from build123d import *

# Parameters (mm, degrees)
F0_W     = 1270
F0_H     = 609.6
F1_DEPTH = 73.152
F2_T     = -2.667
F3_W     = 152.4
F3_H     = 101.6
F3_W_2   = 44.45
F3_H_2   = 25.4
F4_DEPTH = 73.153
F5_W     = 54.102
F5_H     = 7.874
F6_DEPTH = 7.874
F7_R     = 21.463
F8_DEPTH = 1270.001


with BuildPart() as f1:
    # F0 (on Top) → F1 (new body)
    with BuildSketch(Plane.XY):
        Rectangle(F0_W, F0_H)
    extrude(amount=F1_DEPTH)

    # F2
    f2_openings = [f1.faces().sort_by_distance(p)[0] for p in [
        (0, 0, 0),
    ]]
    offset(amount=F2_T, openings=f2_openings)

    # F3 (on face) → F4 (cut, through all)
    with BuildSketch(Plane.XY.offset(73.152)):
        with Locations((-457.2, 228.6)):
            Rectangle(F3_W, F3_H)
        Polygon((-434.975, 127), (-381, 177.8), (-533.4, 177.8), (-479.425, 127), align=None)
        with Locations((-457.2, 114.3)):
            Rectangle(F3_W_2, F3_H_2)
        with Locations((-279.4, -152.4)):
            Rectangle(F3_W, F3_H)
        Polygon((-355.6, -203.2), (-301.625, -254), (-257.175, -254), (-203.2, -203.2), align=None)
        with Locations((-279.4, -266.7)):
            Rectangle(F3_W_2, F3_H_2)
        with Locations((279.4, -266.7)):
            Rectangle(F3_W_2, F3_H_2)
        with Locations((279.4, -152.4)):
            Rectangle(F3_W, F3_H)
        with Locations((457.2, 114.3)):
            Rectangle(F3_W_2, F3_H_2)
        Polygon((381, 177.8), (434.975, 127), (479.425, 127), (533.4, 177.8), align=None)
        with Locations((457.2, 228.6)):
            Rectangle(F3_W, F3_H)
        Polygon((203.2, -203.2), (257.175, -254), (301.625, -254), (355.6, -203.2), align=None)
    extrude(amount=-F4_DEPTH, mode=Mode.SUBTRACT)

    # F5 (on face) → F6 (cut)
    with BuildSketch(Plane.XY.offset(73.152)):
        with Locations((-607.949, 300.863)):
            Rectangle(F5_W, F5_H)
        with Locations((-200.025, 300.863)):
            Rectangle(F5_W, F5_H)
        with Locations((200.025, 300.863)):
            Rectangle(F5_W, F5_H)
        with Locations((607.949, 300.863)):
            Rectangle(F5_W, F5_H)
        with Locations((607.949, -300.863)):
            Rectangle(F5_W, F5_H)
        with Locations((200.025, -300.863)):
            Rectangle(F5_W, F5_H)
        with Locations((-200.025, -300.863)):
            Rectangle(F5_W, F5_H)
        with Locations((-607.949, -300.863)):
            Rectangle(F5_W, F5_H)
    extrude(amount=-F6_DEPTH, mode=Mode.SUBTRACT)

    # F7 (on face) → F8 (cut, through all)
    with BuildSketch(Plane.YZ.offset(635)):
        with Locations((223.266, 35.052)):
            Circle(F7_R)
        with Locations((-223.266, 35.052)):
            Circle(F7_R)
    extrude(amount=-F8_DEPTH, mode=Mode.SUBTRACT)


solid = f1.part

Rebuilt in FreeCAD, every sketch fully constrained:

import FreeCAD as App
import Part
import Sketcher
Q = App.Units.Quantity


def faces_at(feature, points):
    """Names of the faces that lie closest to the given points."""
    faces = feature.Shape.Faces
    near = lambda p: min(range(len(faces)), key=lambda i: faces[i].distToShape(Part.Vertex(*p))[0])
    return sorted({f"Face{near(p) + 1}" for p in points})


def add_polygon(sketch, points):
    """Adds a closed chain of lines whose ends are joined by coincident constraints."""
    first, n = sketch.GeometryCount, len(points)
    for a, b in zip(points, points[1:] + points[:1]):
        sketch.addGeometry(Part.LineSegment(App.Vector(*a, 0), App.Vector(*b, 0)), False)
    for i in range(n):
        sketch.addConstraint(Sketcher.Constraint("Coincident", first + i, 2, first + (i + 1) % n, 1))

doc = App.newDocument("Part")
body = doc.addObject("PartDesign::Body", "Body")

# Sketch on XY plane
sketch1 = body.newObject("Sketcher::SketchObject", "Sketch")
sketch1.AttachmentSupport = (doc.getObject("XY_Plane"), [""])
sketch1.MapMode = "FlatFace"
add_polygon(sketch1, [(-635, 305), (-635, -305), (635, -305), (635, 305)])  # lines 0-3
sketch1.addConstraint(Sketcher.Constraint("Vertical", 0))
sketch1.addConstraint(Sketcher.Constraint("Horizontal", 1))
sketch1.addConstraint(Sketcher.Constraint("Vertical", 2))
sketch1.addConstraint(Sketcher.Constraint("Horizontal", 3))
sketch1.addConstraint(Sketcher.Constraint("Symmetric", 0, 2, 2, 2, -1, 1))
sketch1.addConstraint(Sketcher.Constraint("DistanceX", 1, 1, 1, 2, Q("50 in")))
sketch1.addConstraint(Sketcher.Constraint("DistanceY", 0, 2, 0, 1, Q("24 in")))
pad1 = body.newObject("PartDesign::Pad", "Pad")
pad1.Profile = sketch1
pad1.Length = Q("2.88 in")
doc.recompute()

thickness = body.newObject("PartDesign::Thickness", "Thickness")
thickness.Base = (pad1, faces_at(pad1, [(0, 0, 0)]))
thickness.Value = Q("0.105 in")
thickness.Reversed = True
thickness.Join = "Arc"

# Sketch on XY plane
sketch2 = body.newObject("Sketcher::SketchObject", "Sketch001")
sketch2.AttachmentSupport = (doc.getObject("XY_Plane"), [""])
sketch2.MapMode = "FlatFace"
sketch2.AttachmentOffset = App.Placement(App.Vector(0, 0, 2.88 * 25.4), App.Rotation())
add_polygon(sketch2, [(-533, 279), (-533, 178), (-479, 127), (-479, 102), (-435, 102), (-435, 127), (-381, 178), (-381, 279)])  # lines 0-7
add_polygon(sketch2, [(-356, -102), (-356, -203), (-302, -254), (-302, -279), (-257, -279), (-257, -254), (-203, -203), (-203, -102)])  # lines 8-15
add_polygon(sketch2, [(257, -254), (257, -279), (302, -279), (302, -254), (356, -203), (356, -102), (203, -102), (203, -203)])  # lines 16-23
add_polygon(sketch2, [(435, 127), (435, 102), (479, 102), (479, 127), (533, 178), (533, 279), (381, 279), (381, 178)])  # lines 24-31
sketch2.addConstraint(Sketcher.Constraint("Vertical", 0))
sketch2.addConstraint(Sketcher.Constraint("Vertical", 2))
sketch2.addConstraint(Sketcher.Constraint("Horizontal", 3))
sketch2.addConstraint(Sketcher.Constraint("Vertical", 4))
sketch2.addConstraint(Sketcher.Constraint("Vertical", 6))
sketch2.addConstraint(Sketcher.Constraint("Horizontal", 7))
sketch2.addConstraint(Sketcher.Constraint("Vertical", 8))
sketch2.addConstraint(Sketcher.Constraint("Vertical", 10))
sketch2.addConstraint(Sketcher.Constraint("Horizontal", 11))
sketch2.addConstraint(Sketcher.Constraint("Vertical", 12))
sketch2.addConstraint(Sketcher.Constraint("Vertical", 14))
sketch2.addConstraint(Sketcher.Constraint("Horizontal", 15))
sketch2.addConstraint(Sketcher.Constraint("Vertical", 16))
sketch2.addConstraint(Sketcher.Constraint("Horizontal", 17))
sketch2.addConstraint(Sketcher.Constraint("Vertical", 18))
sketch2.addConstraint(Sketcher.Constraint("Vertical", 20))
sketch2.addConstraint(Sketcher.Constraint("Horizontal", 21))
sketch2.addConstraint(Sketcher.Constraint("Vertical", 22))
sketch2.addConstraint(Sketcher.Constraint("Vertical", 24))
sketch2.addConstraint(Sketcher.Constraint("Horizontal", 25))
sketch2.addConstraint(Sketcher.Constraint("Vertical", 26))
sketch2.addConstraint(Sketcher.Constraint("Vertical", 28))
sketch2.addConstraint(Sketcher.Constraint("Horizontal", 29))
sketch2.addConstraint(Sketcher.Constraint("Vertical", 30))
sketch2.addConstraint(Sketcher.Constraint("Symmetric", 11, 2, 16, 2, -2))
sketch2.addConstraint(Sketcher.Constraint("Symmetric", 9, 2, 18, 2, -2))
sketch2.addConstraint(Sketcher.Constraint("Symmetric", 8, 2, 19, 2, -2))
sketch2.addConstraint(Sketcher.Constraint("Symmetric", 14, 2, 21, 2, -2))
sketch2.addConstraint(Sketcher.Constraint("Symmetric", 3, 2, 24, 2, -2))
sketch2.addConstraint(Sketcher.Constraint("Symmetric", 1, 2, 26, 2, -2))
sketch2.addConstraint(Sketcher.Constraint("Symmetric", 0, 2, 27, 2, -2))
sketch2.addConstraint(Sketcher.Constraint("Symmetric", 6, 2, 29, 2, -2))
sketch2.addConstraint(Sketcher.Constraint("Parallel", 1, 9))
sketch2.addConstraint(Sketcher.Constraint("Parallel", 5, 13))
sketch2.addConstraint(Sketcher.Constraint("Parallel", 13, 19))
sketch2.addConstraint(Sketcher.Constraint("Parallel", 9, 23))
sketch2.addConstraint(Sketcher.Constraint("Parallel", 23, 31))
sketch2.addConstraint(Sketcher.Constraint("Horizontal", 1, 2, 4, 2))
sketch2.addConstraint(Sketcher.Constraint("Horizontal", 0, 2, 5, 2))
sketch2.addConstraint(Sketcher.Constraint("Horizontal", 9, 2, 12, 2))
sketch2.addConstraint(Sketcher.Constraint("Horizontal", 8, 2, 13, 2))
sketch2.addConstraint(Sketcher.Constraint("Horizontal", 19, 2, 22, 2))
sketch2.addConstraint(Sketcher.Constraint("Horizontal", 27, 2, 30, 2))
sketch2.addConstraint(Sketcher.Constraint("Equal", 3, 11))
sketch2.addConstraint(Sketcher.Constraint("Equal", 7, 15))
sketch2.addConstraint(Sketcher.Constraint("Equal", 6, 8))
sketch2.addConstraint(Sketcher.Constraint("Equal", 4, 10))
sketch2.addConstraint(Sketcher.Constraint("DistanceX", 7, 2, 7, 1, Q("6 in")))
sketch2.addConstraint(Sketcher.Constraint("DistanceY", 0, 2, 0, 1, Q("4 in")))
sketch2.addConstraint(Sketcher.Constraint("DistanceY", 2, 2, 2, 1, Q("1 in")))
sketch2.addConstraint(Sketcher.Constraint("DistanceX", 0, 2, -1, 1, Q("21 in")))
sketch2.addConstraint(Sketcher.Constraint("DistanceY", -1, 1, 0, 2, Q("7 in")))
sketch2.addConstraint(Sketcher.Constraint("DistanceY", -1, 1, 1, 2, Q("5 in")))
sketch2.addConstraint(Sketcher.Constraint("DistanceX", 8, 2, -1, 1, Q("14 in")))
sketch2.addConstraint(Sketcher.Constraint("DistanceY", 8, 2, -1, 1, Q("8 in")))
sketch2.addConstraint(Sketcher.Constraint("DistanceX", 3, 1, 3, 2, Q("1.75 in")))
pocket1 = body.newObject("PartDesign::Pocket", "Pocket")
pocket1.Profile = sketch2
pocket1.Type = "ThroughAll"

# Sketch on XY plane
sketch3 = body.newObject("Sketcher::SketchObject", "Sketch002")
sketch3.AttachmentSupport = (doc.getObject("XY_Plane"), [""])
sketch3.MapMode = "FlatFace"
sketch3.AttachmentOffset = App.Placement(App.Vector(0, 0, 2.88 * 25.4), App.Rotation())
add_polygon(sketch3, [(-635, 305), (-635, 297), (-581, 297), (-581, 305)])  # lines 0-3
add_polygon(sketch3, [(-227, 305), (-227, 297), (-173, 297), (-173, 305)])  # lines 4-7
add_polygon(sketch3, [(173, 305), (173, 297), (227, 297), (227, 305)])  # lines 8-11
add_polygon(sketch3, [(581, 305), (581, 297), (635, 297), (635, 305)])  # lines 12-15
add_polygon(sketch3, [(581, -297), (581, -305), (635, -305), (635, -297)])  # lines 16-19
add_polygon(sketch3, [(173, -297), (173, -305), (227, -305), (227, -297)])  # lines 20-23
add_polygon(sketch3, [(-227, -297), (-227, -305), (-173, -305), (-173, -297)])  # lines 24-27
add_polygon(sketch3, [(-635, -297), (-635, -305), (-581, -305), (-581, -297)])  # lines 28-31
sketch3.addConstraint(Sketcher.Constraint("Vertical", 0))
sketch3.addConstraint(Sketcher.Constraint("Horizontal", 1))
sketch3.addConstraint(Sketcher.Constraint("Vertical", 2))
sketch3.addConstraint(Sketcher.Constraint("Horizontal", 3))
sketch3.addConstraint(Sketcher.Constraint("Vertical", 4))
sketch3.addConstraint(Sketcher.Constraint("Horizontal", 5))
sketch3.addConstraint(Sketcher.Constraint("Vertical", 6))
sketch3.addConstraint(Sketcher.Constraint("Horizontal", 7))
sketch3.addConstraint(Sketcher.Constraint("Vertical", 8))
sketch3.addConstraint(Sketcher.Constraint("Horizontal", 9))
sketch3.addConstraint(Sketcher.Constraint("Vertical", 10))
sketch3.addConstraint(Sketcher.Constraint("Horizontal", 11))
sketch3.addConstraint(Sketcher.Constraint("Vertical", 12))
sketch3.addConstraint(Sketcher.Constraint("Horizontal", 13))
sketch3.addConstraint(Sketcher.Constraint("Vertical", 14))
sketch3.addConstraint(Sketcher.Constraint("Horizontal", 15))
sketch3.addConstraint(Sketcher.Constraint("Vertical", 16))
sketch3.addConstraint(Sketcher.Constraint("Horizontal", 17))
sketch3.addConstraint(Sketcher.Constraint("Vertical", 18))
sketch3.addConstraint(Sketcher.Constraint("Horizontal", 19))
sketch3.addConstraint(Sketcher.Constraint("Vertical", 20))
sketch3.addConstraint(Sketcher.Constraint("Horizontal", 21))
sketch3.addConstraint(Sketcher.Constraint("Vertical", 22))
sketch3.addConstraint(Sketcher.Constraint("Horizontal", 23))
sketch3.addConstraint(Sketcher.Constraint("Vertical", 24))
sketch3.addConstraint(Sketcher.Constraint("Horizontal", 25))
sketch3.addConstraint(Sketcher.Constraint("Vertical", 26))
sketch3.addConstraint(Sketcher.Constraint("Horizontal", 27))
sketch3.addConstraint(Sketcher.Constraint("Vertical", 28))
sketch3.addConstraint(Sketcher.Constraint("Horizontal", 29))
sketch3.addConstraint(Sketcher.Constraint("Vertical", 30))
sketch3.addConstraint(Sketcher.Constraint("Horizontal", 31))
sketch3.addConstraint(Sketcher.Constraint("Symmetric", 2, 2, 16, 2, -1, 1))
sketch3.addConstraint(Sketcher.Constraint("Symmetric", 0, 2, 18, 2, -1, 1))
sketch3.addConstraint(Sketcher.Constraint("Symmetric", 6, 2, 20, 2, -1, 1))
sketch3.addConstraint(Sketcher.Constraint("Symmetric", 4, 2, 22, 2, -1, 1))
sketch3.addConstraint(Sketcher.Constraint("Symmetric", 10, 2, 24, 2, -1, 1))
sketch3.addConstraint(Sketcher.Constraint("Symmetric", 8, 2, 26, 2, -1, 1))
sketch3.addConstraint(Sketcher.Constraint("Symmetric", 14, 2, 28, 2, -1, 1))
sketch3.addConstraint(Sketcher.Constraint("Symmetric", 12, 2, 30, 2, -1, 1))
sketch3.addConstraint(Sketcher.Constraint("Symmetric", 5, 2, 8, 2, -2))
sketch3.addConstraint(Sketcher.Constraint("Symmetric", 7, 2, 10, 2, -2))
sketch3.addConstraint(Sketcher.Constraint("Symmetric", 1, 2, 12, 2, -2))
sketch3.addConstraint(Sketcher.Constraint("Symmetric", 3, 2, 14, 2, -2))
sketch3.addConstraint(Sketcher.Constraint("Horizontal", 1, 2, 4, 2))
sketch3.addConstraint(Sketcher.Constraint("Horizontal", 3, 2, 6, 2))
sketch3.addConstraint(Sketcher.Constraint("Equal", 3, 5))
sketch3.addConstraint(Sketcher.Constraint("DistanceX", 0, 2, -1, 1, Q("25 in")))
sketch3.addConstraint(Sketcher.Constraint("DistanceY", -1, 1, 2, 2, Q("12 in")))
sketch3.addConstraint(Sketcher.Constraint("DistanceX", 1, 1, 1, 2, Q("2.13 in")))
sketch3.addConstraint(Sketcher.Constraint("DistanceY", 0, 2, 0, 1, Q("0.31 in")))
sketch3.addConstraint(Sketcher.Constraint("DistanceX", 4, 2, -1, 1, Q("8.94 in")))
pocket2 = body.newObject("PartDesign::Pocket", "Pocket001")
pocket2.Profile = sketch3
pocket2.Length = Q("0.31 in")

# Sketch on YZ plane
sketch4 = body.newObject("Sketcher::SketchObject", "Sketch003")
sketch4.AttachmentSupport = (doc.getObject("YZ_Plane"), [""])
sketch4.MapMode = "FlatFace"
sketch4.AttachmentOffset = App.Placement(App.Vector(0, 0, 25 * 25.4), App.Rotation())
sketch4.addGeometry(Part.Circle(App.Vector(223, 35, 0), App.Vector(0, 0, 1), 21), False)
sketch4.addGeometry(Part.Circle(App.Vector(-223, 35, 0), App.Vector(0, 0, 1), 21), False)
sketch4.addConstraint(Sketcher.Constraint("Equal", 0, 1))
sketch4.addConstraint(Sketcher.Constraint("Symmetric", 0, 3, 1, 3, -2))
sketch4.addConstraint(Sketcher.Constraint("Diameter", 0, Q("1.69 in")))
sketch4.addConstraint(Sketcher.Constraint("DistanceX", -1, 1, 0, 3, Q("8.79 in")))
sketch4.addConstraint(Sketcher.Constraint("DistanceY", -1, 1, 0, 3, Q("1.38 in")))
pocket3 = body.newObject("PartDesign::Pocket", "Pocket002")
pocket3.Profile = sketch4
pocket3.Type = "ThroughAll"

doc.recompute()
